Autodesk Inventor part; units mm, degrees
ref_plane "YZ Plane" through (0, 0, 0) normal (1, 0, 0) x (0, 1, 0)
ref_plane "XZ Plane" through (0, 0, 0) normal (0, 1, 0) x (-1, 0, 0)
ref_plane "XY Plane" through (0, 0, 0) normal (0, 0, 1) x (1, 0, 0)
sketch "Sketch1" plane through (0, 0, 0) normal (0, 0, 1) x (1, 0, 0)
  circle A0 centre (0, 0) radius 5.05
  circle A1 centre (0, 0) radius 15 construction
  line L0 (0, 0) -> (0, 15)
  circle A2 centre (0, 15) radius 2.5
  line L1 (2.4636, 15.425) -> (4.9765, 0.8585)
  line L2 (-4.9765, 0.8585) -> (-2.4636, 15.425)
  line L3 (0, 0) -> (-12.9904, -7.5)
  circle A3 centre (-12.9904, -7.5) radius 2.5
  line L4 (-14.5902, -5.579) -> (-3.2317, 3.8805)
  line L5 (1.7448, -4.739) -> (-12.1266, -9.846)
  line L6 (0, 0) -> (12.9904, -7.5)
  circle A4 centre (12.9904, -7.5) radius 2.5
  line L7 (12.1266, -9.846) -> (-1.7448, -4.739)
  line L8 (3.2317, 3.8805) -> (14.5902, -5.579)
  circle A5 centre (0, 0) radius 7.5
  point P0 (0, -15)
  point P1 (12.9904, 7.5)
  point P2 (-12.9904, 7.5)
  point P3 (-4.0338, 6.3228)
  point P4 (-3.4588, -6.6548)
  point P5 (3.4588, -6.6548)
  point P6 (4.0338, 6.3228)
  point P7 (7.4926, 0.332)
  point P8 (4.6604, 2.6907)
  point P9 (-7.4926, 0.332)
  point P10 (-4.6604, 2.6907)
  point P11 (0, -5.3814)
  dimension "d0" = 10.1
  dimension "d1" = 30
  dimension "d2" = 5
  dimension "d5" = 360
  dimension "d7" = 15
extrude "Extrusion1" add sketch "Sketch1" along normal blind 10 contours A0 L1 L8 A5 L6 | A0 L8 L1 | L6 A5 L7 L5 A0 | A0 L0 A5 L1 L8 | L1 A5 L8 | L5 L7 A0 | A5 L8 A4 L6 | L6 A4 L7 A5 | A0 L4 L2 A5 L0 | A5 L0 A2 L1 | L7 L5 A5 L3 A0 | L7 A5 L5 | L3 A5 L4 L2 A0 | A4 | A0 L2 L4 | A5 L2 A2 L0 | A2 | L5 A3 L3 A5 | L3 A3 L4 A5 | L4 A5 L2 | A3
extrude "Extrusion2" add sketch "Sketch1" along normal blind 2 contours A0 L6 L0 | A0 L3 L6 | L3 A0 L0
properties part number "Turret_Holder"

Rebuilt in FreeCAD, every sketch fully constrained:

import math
import FreeCAD as App
import Part
import Sketcher
Q = App.Units.Quantity

doc = App.newDocument("Part")
body = doc.addObject("PartDesign::Body", "Body")

# Sketch on XY plane
sketch1 = doc.addObject("Sketcher::SketchObject", "Sketch")
body.addObject(sketch1)
sketch1.AttachmentSupport = (doc.XY_Plane, [""])
sketch1.MapMode = "FlatFace"
sketch1.addGeometry([
    Part.ArcOfCircle(Part.Circle(App.Vector(0, 0, 0), App.Vector(0, 0, 1), 7.5), math.radians(3), math.radians(57)),  # 0
    Part.LineSegment(App.Vector(4, 6.3, 0), App.Vector(2.5, 15.4, 0)),  # 1
    Part.ArcOfCircle(Part.Circle(App.Vector(0, 15, 0), App.Vector(0, 0, 1), 2.5), math.radians(10), math.radians(170)),  # 2
    Part.LineSegment(App.Vector(-2.5, 15.4, 0), App.Vector(-4, 6.3, 0)),  # 3
    Part.ArcOfCircle(Part.Circle(App.Vector(0, 0, 0), App.Vector(0, 0, 1), 7.5), math.radians(123), math.radians(177)),  # 4
    Part.LineSegment(App.Vector(-7.5, 0.3, 0), App.Vector(-14.6, -5.6, 0)),  # 5
    Part.ArcOfCircle(Part.Circle(App.Vector(-13, -7.5, 0), App.Vector(0, 0, 1), 2.5), math.radians(130), math.radians(290)),  # 6
    Part.LineSegment(App.Vector(-12.1, -9.8, 0), App.Vector(-3.5, -6.7, 0)),  # 7
    Part.ArcOfCircle(Part.Circle(App.Vector(0, 0, 0), App.Vector(0, 0, 1), 7.5), math.radians(-117), math.radians(-63)),  # 8
    Part.LineSegment(App.Vector(3.5, -6.7, 0), App.Vector(12.1, -9.8, 0)),  # 9
    Part.ArcOfCircle(Part.Circle(App.Vector(13, -7.5, 0), App.Vector(0, 0, 1), 2.5), math.radians(-110), math.radians(50)),  # 10
    Part.LineSegment(App.Vector(14.6, -5.6, 0), App.Vector(7.5, 0.3, 0)),  # 11
    Part.Circle(App.Vector(0, 0, 0), App.Vector(0, 0, 1), 5),  # 12
], False)
sketch1.addConstraint([
    Sketcher.Constraint("Coincident", 0, 2, 1, 1),
    Sketcher.Constraint("Tangent", 1, 2, 2, 1),
    Sketcher.Constraint("Tangent", 2, 2, 3, 1),
    Sketcher.Constraint("Coincident", 3, 2, 4, 1),
    Sketcher.Constraint("Coincident", 4, 2, 5, 1),
    Sketcher.Constraint("Tangent", 5, 2, 6, 1),
    Sketcher.Constraint("Tangent", 6, 2, 7, 1),
    Sketcher.Constraint("Coincident", 7, 2, 8, 1),
    Sketcher.Constraint("Coincident", 8, 2, 9, 1),
    Sketcher.Constraint("Tangent", 9, 2, 10, 1),
    Sketcher.Constraint("Tangent", 10, 2, 11, 1),
    Sketcher.Constraint("Coincident", 11, 2, 0, 1),
    Sketcher.Constraint("Coincident", 0, 3, -1, 1),
    Sketcher.Constraint("Coincident", 4, 3, -1, 1),
    Sketcher.Constraint("Coincident", 8, 3, -1, 1),
    Sketcher.Constraint("Coincident", 12, 3, -1, 1),
    Sketcher.Constraint("Equal", 0, 4),
    Sketcher.Constraint("Equal", 2, 6),
    Sketcher.Constraint("Equal", 4, 8),
    Sketcher.Constraint("Equal", 6, 10),
    Sketcher.Constraint("Symmetric", 6, 3, 10, 3, -2),
    Sketcher.Constraint("Symmetric", 1, 2, 2, 2, -2),
    Sketcher.Constraint("Horizontal", 7, 2, 8, 2),
    Sketcher.Constraint("Horizontal", 5, 2, 10, 2),
    Sketcher.Constraint("Equal", 3, 5),
    Sketcher.Constraint("Equal", 5, 7),
    Sketcher.Constraint("Diameter", 12, Q("10.1 mm")),
    Sketcher.Constraint("Radius", 0, Q("7.5 mm")),
    Sketcher.Constraint("Radius", 2, Q("2.5 mm")),
    Sketcher.Constraint("DistanceY", -1, 1, 2, 3, Q("15 mm")),
    Sketcher.Constraint("DistanceY", 6, 3, -1, 1, Q("7.5 mm")),
    Sketcher.Constraint("DistanceY", -1, 1, 1, 2, Q("15.425 mm")),
    Sketcher.Constraint("DistanceY", -1, 1, 4, 2, Q("0.332 mm")),
])
pad1 = doc.addObject("PartDesign::Pad", "Pad")
body.addObject(pad1)
pad1.Profile = sketch1
pad1.Length = 10

# Sketch on XY plane
sketch2 = doc.addObject("Sketcher::SketchObject", "Sketch001")
body.addObject(sketch2)
sketch2.AttachmentSupport = (doc.XY_Plane, [""])
sketch2.MapMode = "FlatFace"
sketch2.addGeometry(Part.Circle(App.Vector(0, 0, 0), App.Vector(0, 0, 1), 5), False)
sketch2.addConstraint([
    Sketcher.Constraint("Coincident", 0, 3, -1, 1),
    Sketcher.Constraint("Diameter", 0, Q("10.1 mm")),
])
pad2 = doc.addObject("PartDesign::Pad", "Pad001")
body.addObject(pad2)
pad2.Profile = sketch2
pad2.Length = 2

doc.recompute()
